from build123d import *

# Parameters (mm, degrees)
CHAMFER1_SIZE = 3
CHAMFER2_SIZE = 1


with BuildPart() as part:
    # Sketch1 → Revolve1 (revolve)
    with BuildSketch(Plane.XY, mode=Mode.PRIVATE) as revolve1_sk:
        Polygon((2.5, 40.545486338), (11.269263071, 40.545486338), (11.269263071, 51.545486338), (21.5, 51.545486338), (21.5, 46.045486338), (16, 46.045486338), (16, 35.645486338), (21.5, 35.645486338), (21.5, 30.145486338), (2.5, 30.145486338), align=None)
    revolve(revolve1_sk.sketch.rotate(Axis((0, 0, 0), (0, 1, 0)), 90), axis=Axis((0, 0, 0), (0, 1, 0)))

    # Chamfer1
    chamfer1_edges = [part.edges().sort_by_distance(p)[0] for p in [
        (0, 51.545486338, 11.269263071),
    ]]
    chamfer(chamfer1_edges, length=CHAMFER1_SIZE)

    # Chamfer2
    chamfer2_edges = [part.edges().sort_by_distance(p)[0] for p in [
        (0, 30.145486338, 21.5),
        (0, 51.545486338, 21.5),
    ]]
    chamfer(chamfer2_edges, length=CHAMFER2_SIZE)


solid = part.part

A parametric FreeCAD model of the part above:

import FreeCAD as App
import Part
import Sketcher

V = App.Vector


def edges_at(feature, points):
    """Names of the edges that pass closest to the given points."""
    edges = feature.Shape.Edges
    near = lambda p: min(range(len(edges)), key=lambda i: edges[i].distToShape(Part.Vertex(*p))[0])
    return sorted({f"Edge{near(p) + 1}" for p in points})

doc = App.newDocument("Part")
params = doc.addObject("Spreadsheet::Sheet", "Params")
for row, (alias, value) in enumerate([
    ("sketch1_width", "19 mm"),
    ("sketch1_height", "11 mm"),
    ("sketch1_height2", "10.4 mm"),
    ("revolution_angle", "360 deg"),
    ("chamfer_size", "3 mm"),
    ("chamfer2_size", "1 mm"),
], start=1):
    params.set(f"A{row}", alias)
    params.set(f"B{row}", "=" + value)
    params.setAlias(f"B{row}", alias)

body = doc.addObject("PartDesign::Body", "Body")

# Sketch on XY plane
sketch1 = body.newObject("Sketcher::SketchObject", "Sketch")
sketch1.AttachmentSupport = (doc.getObject("XY_Plane"), [""])
sketch1.MapMode = "FlatFace"
sketch1.addGeometry([
    Part.LineSegment(V(11.269263, 40.545486, 0), V(2.5, 40.545486, 0)),  # 0
    Part.LineSegment(V(2.5, 40.545486, 0), V(2.5, 30.145486, 0)),  # 1
    Part.LineSegment(V(2.5, 30.145486, 0), V(21.5, 30.145486, 0)),  # 2
    Part.LineSegment(V(21.5, 30.145486, 0), V(21.5, 35.645486, 0)),  # 3
    Part.LineSegment(V(21.5, 35.645486, 0), V(16, 35.645486, 0)),  # 4
    Part.LineSegment(V(16, 35.645486, 0), V(16, 46.045486, 0)),  # 5
    Part.LineSegment(V(16, 46.045486, 0), V(21.5, 46.045486, 0)),  # 6
    Part.LineSegment(V(21.5, 46.045486, 0), V(21.5, 51.545486, 0)),  # 7
    Part.LineSegment(V(21.5, 51.545486, 0), V(11.269263, 51.545486, 0)),  # 8
    Part.LineSegment(V(11.269263, 51.545486, 0), V(11.269263, 40.545486, 0)),  # 9
], False)
sketch1.addConstraint([
    Sketcher.Constraint("Coincident", 0, 2, 1, 1),
    Sketcher.Constraint("Coincident", 1, 2, 2, 1),
    Sketcher.Constraint("Coincident", 2, 2, 3, 1),
    Sketcher.Constraint("Coincident", 3, 2, 4, 1),
    Sketcher.Constraint("Coincident", 4, 2, 5, 1),
    Sketcher.Constraint("Coincident", 5, 2, 6, 1),
    Sketcher.Constraint("Coincident", 6, 2, 7, 1),
    Sketcher.Constraint("Coincident", 7, 2, 8, 1),
    Sketcher.Constraint("Coincident", 8, 2, 9, 1),
    Sketcher.Constraint("Coincident", 9, 2, 0, 1),
    Sketcher.Constraint("Horizontal", 0),
    Sketcher.Constraint("Vertical", 1),
    Sketcher.Constraint("Horizontal", 2),
    Sketcher.Constraint("Vertical", 3),
    Sketcher.Constraint("Horizontal", 4),
    Sketcher.Constraint("Vertical", 5),
    Sketcher.Constraint("Horizontal", 6),
    Sketcher.Constraint("Vertical", 7),
    Sketcher.Constraint("Horizontal", 8),
    Sketcher.Constraint("Vertical", 9),
    Sketcher.Constraint("Vertical", 3, 2, 6, 2),
    Sketcher.Constraint("Equal", 6, 3),
    Sketcher.Constraint("Equal", 1, 5),
    Sketcher.Constraint("Equal", 3, 7),
    Sketcher.Constraint("DistanceX", 2, 1, 2, 2, 19.0),
    Sketcher.Constraint("DistanceY", 9, 2, 9, 1, 11.0),
    Sketcher.Constraint("DistanceY", 1, 2, 1, 1, 10.4),
    Sketcher.Constraint("DistanceX", -1, 1, 4, 2, 16.0),
    Sketcher.Constraint("DistanceX", 0, 2, 0, 1, 8.769263),
    Sketcher.Constraint("DistanceY", -1, 1, 0, 2, 40.545486),
])
sketch1.setExpression("Constraints[24]", "Params.sketch1_width")
sketch1.setExpression("Constraints[25]", "Params.sketch1_height")
sketch1.setExpression("Constraints[26]", "Params.sketch1_height2")
revolution = body.newObject("PartDesign::Revolution", "Revolution")
revolution.Profile = sketch1
revolution.ReferenceAxis = (sketch1, ["V_Axis"])
revolution.setExpression("Angle", "Params.revolution_angle")
doc.recompute()

chamfer = body.newObject("PartDesign::Chamfer", "Chamfer")
chamfer.Base = (revolution, edges_at(revolution, [(0, 51.545, 11.269)]))
chamfer.setExpression("Size", "Params.chamfer_size")
doc.recompute()

chamfer2 = body.newObject("PartDesign::Chamfer", "Chamfer001")
chamfer2.Base = (chamfer, edges_at(chamfer, [(0, 30.145, 21.5), (0, 51.545, 21.5)]))
chamfer2.setExpression("Size", "Params.chamfer2_size")

doc.recompute()
